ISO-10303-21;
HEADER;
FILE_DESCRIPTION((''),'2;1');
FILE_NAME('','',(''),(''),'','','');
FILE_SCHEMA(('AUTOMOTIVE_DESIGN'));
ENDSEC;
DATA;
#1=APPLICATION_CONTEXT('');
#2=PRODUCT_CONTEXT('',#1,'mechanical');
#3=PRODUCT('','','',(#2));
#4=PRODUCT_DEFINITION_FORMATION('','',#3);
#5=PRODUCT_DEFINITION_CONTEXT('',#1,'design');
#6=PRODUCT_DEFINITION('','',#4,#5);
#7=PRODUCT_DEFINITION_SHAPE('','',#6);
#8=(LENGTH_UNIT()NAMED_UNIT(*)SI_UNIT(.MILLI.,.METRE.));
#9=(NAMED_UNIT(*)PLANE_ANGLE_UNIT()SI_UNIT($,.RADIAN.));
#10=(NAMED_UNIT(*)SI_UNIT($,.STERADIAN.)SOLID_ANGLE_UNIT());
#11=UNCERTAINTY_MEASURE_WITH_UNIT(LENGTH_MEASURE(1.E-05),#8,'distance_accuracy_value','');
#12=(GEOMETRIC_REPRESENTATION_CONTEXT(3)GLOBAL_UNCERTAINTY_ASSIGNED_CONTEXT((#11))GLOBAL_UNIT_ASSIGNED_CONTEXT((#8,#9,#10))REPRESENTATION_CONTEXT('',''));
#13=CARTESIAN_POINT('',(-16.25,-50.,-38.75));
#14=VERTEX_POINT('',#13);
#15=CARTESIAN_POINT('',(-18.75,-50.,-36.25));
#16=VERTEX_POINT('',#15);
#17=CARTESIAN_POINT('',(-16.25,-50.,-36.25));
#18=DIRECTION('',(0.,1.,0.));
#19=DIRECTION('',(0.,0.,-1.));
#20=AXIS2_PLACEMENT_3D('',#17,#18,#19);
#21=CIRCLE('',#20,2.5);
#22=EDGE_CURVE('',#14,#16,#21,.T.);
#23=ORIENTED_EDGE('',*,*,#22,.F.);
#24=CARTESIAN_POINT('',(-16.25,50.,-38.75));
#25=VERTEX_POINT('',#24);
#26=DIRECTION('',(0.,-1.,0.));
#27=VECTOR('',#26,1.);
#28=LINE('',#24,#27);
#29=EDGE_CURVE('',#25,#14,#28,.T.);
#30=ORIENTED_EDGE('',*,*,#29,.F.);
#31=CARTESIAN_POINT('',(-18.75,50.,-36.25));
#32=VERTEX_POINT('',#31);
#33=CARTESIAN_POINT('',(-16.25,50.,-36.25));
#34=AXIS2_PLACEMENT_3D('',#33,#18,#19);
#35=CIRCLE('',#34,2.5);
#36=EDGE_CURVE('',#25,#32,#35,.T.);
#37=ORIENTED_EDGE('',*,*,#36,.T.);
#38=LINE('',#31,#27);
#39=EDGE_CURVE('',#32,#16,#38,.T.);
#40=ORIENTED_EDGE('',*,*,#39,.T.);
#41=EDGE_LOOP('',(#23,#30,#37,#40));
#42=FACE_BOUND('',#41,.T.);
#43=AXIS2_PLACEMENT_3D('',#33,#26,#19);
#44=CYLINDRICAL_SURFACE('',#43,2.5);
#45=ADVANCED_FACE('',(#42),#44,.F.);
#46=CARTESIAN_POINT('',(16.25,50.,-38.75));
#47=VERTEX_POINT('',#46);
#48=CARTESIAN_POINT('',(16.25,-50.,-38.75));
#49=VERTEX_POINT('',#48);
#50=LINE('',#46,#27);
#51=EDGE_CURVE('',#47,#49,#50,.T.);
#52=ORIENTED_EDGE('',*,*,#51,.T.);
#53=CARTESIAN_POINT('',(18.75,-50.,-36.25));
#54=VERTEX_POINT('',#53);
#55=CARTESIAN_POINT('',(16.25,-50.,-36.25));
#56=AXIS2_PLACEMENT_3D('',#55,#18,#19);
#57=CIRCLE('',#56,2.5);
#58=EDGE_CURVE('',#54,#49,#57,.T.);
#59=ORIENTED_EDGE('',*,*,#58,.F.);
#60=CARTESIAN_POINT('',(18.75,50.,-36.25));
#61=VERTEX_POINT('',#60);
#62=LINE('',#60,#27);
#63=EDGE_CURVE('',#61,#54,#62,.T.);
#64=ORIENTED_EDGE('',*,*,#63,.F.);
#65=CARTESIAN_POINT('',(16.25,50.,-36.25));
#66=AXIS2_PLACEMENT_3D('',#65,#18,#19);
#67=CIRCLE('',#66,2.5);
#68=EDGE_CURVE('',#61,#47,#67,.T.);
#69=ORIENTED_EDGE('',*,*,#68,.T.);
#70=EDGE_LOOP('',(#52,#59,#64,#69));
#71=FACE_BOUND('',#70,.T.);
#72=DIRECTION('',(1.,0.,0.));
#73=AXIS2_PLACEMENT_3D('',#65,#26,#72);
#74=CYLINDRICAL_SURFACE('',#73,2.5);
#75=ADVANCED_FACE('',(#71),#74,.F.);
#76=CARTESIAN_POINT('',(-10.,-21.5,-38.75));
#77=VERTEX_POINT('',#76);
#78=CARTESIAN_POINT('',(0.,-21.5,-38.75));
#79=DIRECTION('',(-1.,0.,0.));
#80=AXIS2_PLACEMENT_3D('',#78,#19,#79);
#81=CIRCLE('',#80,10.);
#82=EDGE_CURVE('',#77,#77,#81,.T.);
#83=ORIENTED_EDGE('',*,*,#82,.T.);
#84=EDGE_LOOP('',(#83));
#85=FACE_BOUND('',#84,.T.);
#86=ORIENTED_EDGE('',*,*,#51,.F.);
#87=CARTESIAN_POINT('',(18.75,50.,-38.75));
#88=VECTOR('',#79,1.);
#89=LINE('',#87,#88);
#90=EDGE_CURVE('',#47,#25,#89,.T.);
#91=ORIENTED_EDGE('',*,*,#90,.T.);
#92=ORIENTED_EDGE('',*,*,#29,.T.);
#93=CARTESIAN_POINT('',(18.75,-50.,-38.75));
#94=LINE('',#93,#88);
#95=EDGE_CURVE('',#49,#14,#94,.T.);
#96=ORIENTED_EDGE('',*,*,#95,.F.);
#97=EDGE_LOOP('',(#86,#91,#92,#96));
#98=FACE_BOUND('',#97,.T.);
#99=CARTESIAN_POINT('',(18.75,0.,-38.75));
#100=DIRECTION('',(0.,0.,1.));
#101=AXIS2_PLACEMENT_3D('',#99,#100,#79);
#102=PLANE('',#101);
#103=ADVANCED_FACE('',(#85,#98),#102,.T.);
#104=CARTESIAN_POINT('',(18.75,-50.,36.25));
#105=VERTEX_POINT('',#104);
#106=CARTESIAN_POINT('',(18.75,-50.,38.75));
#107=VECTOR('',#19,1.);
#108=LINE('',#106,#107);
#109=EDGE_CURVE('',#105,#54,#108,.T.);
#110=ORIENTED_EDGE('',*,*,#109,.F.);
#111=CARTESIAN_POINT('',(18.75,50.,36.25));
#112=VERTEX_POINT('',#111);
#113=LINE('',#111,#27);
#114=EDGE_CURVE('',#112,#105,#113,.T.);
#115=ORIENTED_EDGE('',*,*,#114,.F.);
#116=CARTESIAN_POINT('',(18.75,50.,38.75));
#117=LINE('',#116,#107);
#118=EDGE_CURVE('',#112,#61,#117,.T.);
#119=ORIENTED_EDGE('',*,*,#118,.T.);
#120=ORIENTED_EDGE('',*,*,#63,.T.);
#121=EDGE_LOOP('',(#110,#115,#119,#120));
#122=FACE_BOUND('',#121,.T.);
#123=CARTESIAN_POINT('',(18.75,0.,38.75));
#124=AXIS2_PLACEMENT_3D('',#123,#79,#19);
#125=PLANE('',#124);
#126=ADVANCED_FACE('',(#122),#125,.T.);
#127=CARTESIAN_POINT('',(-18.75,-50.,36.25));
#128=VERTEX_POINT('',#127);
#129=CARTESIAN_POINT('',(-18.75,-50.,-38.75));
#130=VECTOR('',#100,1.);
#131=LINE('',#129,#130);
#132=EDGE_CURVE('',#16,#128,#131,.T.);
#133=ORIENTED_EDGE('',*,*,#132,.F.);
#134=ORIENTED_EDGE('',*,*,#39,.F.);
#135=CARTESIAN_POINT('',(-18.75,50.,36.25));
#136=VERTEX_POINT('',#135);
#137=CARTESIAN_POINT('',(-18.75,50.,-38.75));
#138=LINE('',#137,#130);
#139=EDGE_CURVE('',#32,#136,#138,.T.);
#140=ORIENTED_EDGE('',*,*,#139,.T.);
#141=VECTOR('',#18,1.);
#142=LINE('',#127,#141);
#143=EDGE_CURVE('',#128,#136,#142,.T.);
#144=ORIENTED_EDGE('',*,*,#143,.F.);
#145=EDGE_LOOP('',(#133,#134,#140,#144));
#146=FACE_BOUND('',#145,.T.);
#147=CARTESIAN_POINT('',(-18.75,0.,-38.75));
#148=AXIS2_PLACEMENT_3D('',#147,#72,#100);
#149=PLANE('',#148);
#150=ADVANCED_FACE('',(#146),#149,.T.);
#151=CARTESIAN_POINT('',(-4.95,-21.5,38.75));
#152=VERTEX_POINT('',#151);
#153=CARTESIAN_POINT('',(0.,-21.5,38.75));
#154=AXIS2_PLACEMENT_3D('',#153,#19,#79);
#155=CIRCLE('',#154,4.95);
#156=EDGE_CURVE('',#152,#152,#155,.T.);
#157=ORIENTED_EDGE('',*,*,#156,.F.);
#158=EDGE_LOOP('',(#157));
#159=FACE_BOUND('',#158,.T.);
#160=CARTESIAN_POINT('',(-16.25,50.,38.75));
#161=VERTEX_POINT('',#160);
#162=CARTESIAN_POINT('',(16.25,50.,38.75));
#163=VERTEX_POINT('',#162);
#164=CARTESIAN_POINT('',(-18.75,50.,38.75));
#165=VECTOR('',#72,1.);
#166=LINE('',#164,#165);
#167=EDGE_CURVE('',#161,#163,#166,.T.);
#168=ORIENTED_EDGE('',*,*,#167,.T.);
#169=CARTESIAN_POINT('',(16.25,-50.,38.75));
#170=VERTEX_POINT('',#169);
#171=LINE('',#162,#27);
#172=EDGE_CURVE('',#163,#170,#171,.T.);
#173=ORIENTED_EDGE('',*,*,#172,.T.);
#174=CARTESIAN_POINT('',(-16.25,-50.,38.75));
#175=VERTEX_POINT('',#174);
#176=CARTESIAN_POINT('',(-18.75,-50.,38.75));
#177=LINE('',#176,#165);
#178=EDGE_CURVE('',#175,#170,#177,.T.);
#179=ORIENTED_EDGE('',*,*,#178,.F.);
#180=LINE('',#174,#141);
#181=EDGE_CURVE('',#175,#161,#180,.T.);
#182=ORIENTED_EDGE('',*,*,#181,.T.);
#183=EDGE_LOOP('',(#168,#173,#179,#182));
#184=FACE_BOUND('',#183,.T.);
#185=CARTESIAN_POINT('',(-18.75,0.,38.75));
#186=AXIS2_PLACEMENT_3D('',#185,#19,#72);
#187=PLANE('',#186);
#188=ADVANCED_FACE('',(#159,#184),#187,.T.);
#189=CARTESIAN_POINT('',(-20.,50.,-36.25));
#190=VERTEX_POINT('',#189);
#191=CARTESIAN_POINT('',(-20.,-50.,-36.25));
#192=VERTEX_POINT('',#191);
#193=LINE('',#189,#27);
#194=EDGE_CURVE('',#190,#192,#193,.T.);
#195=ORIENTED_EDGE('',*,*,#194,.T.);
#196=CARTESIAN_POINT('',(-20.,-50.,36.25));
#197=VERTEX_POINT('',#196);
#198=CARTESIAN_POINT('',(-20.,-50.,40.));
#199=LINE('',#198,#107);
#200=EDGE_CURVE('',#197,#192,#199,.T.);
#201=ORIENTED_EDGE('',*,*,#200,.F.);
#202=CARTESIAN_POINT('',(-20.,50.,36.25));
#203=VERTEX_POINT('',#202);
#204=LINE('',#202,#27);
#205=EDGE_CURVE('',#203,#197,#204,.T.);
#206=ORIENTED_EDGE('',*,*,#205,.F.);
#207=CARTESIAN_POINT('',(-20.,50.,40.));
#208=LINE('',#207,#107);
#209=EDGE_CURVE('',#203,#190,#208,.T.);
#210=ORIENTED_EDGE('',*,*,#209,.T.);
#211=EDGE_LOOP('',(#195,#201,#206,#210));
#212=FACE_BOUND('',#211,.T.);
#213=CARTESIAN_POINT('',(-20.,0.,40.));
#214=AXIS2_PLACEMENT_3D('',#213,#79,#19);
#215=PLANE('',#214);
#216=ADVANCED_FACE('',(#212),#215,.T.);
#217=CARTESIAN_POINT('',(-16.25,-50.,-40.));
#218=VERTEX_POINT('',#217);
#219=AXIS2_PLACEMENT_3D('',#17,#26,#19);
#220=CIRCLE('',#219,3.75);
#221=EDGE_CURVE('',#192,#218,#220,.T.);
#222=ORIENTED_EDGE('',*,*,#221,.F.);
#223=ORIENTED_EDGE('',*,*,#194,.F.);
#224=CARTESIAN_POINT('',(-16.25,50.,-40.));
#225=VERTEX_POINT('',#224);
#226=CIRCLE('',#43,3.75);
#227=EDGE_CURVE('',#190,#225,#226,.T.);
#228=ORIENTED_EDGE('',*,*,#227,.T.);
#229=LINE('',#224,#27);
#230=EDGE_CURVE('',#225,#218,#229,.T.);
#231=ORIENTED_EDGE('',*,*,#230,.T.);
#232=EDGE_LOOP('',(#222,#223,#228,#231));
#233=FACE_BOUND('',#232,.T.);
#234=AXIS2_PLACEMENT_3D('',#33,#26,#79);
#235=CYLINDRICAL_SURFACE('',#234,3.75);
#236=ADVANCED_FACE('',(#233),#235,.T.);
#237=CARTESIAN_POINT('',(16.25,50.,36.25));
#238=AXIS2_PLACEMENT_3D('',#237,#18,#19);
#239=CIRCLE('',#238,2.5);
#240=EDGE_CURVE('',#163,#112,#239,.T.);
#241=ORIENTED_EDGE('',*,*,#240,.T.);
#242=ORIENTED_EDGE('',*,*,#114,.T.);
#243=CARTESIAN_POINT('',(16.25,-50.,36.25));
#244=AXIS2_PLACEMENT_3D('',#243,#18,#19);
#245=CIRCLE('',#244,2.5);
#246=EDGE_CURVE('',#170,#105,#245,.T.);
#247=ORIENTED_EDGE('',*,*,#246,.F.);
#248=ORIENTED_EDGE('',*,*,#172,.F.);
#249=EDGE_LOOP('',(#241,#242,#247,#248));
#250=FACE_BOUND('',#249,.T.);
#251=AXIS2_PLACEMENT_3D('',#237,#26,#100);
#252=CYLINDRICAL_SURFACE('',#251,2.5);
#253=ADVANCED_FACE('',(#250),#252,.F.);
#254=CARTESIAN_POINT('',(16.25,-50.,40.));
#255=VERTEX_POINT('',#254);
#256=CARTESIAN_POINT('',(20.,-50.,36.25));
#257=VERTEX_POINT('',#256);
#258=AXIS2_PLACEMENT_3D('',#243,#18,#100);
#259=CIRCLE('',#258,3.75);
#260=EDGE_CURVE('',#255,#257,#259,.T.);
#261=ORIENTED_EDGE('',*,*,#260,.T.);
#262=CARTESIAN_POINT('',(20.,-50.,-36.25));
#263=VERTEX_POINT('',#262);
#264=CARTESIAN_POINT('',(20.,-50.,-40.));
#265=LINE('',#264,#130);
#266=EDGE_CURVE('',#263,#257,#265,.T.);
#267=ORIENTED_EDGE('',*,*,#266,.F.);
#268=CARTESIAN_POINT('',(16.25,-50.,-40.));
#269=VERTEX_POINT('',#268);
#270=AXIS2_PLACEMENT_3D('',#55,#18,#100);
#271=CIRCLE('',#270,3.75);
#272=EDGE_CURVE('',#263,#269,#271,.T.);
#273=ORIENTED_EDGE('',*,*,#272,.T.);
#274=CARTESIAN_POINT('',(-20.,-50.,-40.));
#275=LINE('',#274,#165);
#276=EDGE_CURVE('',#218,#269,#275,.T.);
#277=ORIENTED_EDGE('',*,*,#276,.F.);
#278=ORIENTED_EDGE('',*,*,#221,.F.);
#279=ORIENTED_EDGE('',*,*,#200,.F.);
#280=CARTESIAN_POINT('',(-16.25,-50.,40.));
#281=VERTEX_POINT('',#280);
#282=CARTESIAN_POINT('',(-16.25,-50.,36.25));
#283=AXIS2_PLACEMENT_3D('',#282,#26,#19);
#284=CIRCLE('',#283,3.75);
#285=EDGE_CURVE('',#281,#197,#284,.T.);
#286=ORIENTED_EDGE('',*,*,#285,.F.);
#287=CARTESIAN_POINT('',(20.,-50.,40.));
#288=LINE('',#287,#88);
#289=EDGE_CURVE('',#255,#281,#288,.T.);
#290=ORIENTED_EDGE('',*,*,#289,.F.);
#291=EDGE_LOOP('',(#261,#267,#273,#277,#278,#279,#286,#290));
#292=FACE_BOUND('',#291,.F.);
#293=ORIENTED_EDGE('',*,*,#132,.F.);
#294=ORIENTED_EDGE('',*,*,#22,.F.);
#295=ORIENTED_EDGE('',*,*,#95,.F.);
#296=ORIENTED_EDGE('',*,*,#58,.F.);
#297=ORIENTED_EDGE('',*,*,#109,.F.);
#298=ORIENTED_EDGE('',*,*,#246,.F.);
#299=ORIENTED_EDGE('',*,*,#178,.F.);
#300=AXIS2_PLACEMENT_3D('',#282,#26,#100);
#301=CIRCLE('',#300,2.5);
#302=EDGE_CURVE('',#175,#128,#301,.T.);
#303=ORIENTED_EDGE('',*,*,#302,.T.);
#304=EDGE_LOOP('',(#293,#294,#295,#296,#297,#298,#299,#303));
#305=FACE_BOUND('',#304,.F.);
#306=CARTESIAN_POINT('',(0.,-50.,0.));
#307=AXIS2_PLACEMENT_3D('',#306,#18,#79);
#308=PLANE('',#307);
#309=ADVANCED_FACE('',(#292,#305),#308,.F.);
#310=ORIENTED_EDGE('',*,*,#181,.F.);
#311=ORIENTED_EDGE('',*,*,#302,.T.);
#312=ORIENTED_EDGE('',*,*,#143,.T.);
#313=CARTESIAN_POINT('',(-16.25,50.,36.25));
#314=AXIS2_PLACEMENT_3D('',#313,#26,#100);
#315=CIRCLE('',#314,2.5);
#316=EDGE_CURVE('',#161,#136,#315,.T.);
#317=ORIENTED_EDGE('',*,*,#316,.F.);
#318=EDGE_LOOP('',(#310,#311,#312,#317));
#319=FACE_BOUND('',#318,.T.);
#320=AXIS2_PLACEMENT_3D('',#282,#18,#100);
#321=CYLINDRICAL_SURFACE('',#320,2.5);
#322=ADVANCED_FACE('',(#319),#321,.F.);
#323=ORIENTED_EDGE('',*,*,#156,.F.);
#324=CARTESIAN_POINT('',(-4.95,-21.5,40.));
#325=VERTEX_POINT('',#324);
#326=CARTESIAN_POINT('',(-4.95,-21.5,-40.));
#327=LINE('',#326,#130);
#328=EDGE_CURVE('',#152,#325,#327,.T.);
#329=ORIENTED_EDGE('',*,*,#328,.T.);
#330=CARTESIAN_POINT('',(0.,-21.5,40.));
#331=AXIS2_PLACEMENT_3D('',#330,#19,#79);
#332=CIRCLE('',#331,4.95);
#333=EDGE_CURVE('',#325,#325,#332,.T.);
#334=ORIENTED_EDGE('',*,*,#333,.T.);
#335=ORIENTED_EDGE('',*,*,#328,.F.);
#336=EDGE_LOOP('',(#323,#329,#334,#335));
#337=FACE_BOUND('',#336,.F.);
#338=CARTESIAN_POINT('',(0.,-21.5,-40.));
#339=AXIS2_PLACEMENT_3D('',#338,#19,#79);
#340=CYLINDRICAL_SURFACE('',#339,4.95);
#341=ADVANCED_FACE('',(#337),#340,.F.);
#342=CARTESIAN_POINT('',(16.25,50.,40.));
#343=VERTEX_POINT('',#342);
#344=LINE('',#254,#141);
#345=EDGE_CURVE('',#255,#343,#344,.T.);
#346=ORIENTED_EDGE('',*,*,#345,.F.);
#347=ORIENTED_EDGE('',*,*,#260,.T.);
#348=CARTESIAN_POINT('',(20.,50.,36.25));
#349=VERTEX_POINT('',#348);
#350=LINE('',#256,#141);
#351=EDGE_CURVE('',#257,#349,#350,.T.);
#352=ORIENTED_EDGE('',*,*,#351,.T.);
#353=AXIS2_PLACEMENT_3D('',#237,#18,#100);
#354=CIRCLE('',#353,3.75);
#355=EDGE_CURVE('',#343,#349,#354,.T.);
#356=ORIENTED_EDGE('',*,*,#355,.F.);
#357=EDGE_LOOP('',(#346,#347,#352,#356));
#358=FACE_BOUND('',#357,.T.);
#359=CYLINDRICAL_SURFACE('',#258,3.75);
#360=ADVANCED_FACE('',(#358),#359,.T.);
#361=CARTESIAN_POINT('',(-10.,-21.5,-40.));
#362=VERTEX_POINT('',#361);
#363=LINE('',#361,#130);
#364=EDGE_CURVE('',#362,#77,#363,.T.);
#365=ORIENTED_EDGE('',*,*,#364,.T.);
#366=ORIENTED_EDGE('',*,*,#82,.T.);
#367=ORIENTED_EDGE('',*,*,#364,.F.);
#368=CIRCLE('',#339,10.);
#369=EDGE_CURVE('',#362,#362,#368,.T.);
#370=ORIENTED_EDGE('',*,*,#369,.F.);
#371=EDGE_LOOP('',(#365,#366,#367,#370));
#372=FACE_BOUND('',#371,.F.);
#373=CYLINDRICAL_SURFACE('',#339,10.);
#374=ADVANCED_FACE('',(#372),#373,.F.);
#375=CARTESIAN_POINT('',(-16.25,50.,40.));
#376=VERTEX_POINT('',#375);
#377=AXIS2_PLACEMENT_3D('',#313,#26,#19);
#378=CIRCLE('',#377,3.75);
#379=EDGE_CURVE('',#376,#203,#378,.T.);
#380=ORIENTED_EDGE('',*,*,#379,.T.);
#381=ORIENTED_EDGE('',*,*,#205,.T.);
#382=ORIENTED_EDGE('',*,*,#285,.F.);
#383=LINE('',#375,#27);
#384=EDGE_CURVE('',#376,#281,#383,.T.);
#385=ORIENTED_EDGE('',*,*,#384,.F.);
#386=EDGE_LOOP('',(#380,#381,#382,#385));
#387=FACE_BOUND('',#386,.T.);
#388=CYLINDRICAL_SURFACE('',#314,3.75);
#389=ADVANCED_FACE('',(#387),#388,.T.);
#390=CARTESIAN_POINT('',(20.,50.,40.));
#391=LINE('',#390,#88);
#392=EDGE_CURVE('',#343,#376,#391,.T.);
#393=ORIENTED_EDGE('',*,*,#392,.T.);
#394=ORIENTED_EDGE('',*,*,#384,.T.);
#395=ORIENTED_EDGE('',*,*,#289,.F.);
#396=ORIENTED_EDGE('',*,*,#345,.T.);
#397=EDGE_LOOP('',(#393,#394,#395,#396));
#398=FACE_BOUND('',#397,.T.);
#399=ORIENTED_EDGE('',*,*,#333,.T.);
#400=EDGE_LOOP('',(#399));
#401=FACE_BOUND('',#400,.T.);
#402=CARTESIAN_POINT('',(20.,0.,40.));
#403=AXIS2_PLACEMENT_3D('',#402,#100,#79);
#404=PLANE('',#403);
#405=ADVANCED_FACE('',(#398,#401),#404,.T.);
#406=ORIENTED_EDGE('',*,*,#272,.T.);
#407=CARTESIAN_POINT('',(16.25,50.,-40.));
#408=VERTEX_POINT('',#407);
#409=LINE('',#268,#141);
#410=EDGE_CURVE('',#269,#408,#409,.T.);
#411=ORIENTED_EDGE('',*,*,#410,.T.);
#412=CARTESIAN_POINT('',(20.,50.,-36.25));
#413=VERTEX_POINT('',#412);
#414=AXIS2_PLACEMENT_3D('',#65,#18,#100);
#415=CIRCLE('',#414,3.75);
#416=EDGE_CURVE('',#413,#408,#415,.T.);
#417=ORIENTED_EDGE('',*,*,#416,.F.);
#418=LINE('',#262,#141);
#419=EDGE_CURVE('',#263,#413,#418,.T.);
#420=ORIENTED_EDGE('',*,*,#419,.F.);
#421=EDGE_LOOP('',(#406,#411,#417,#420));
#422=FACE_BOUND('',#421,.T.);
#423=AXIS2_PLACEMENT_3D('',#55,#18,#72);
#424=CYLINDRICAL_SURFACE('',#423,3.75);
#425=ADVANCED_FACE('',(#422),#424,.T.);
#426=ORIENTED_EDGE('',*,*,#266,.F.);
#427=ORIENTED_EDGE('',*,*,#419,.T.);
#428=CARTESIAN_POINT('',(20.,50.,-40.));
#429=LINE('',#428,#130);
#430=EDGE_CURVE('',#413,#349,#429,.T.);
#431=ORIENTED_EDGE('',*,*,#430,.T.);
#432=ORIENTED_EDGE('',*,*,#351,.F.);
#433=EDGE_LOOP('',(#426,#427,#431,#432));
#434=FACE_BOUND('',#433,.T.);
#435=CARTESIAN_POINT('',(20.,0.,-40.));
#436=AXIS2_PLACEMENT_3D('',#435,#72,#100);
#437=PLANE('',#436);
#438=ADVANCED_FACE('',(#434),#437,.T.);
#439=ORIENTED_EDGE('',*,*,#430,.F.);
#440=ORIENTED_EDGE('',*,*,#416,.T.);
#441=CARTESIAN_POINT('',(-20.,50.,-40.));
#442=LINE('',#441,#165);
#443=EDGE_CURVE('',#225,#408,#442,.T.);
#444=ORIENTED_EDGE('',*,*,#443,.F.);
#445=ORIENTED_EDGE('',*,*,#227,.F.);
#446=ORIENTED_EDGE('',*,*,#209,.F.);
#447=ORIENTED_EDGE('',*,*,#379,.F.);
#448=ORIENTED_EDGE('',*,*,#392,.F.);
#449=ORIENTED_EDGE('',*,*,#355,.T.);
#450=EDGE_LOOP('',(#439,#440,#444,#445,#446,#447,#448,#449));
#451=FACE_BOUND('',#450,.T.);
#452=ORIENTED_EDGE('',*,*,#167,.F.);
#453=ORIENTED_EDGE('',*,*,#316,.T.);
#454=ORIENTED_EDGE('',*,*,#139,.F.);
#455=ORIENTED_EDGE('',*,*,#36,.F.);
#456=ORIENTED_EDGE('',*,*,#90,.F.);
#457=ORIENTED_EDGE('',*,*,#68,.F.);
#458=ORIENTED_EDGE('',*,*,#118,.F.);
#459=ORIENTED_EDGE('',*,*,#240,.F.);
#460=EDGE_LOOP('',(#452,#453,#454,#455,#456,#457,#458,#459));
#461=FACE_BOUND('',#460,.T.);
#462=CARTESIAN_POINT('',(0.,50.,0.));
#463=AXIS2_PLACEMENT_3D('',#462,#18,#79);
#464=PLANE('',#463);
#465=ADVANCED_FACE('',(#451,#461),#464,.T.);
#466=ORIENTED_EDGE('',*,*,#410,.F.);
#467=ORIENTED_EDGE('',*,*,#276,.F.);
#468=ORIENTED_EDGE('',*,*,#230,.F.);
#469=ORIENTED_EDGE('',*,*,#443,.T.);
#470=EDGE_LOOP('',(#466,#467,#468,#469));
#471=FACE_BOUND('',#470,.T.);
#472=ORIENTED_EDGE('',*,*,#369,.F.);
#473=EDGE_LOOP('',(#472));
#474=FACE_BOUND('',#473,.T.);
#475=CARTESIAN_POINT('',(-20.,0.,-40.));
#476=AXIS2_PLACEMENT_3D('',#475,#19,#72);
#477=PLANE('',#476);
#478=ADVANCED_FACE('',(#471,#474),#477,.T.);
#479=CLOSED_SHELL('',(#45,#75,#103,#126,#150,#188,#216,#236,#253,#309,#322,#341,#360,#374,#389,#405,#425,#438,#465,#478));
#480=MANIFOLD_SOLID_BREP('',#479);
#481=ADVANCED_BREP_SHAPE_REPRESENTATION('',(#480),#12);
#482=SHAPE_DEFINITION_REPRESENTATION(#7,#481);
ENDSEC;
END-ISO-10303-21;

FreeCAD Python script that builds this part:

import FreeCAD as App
import Part
import Sketcher
from FreeCAD import Vector


def edges_at(feature, points):
    """Names of the edges that pass closest to the given points."""
    edges = feature.Shape.Edges
    near = lambda p: min(range(len(edges)), key=lambda i: edges[i].distToShape(Part.Vertex(*p))[0])
    return sorted({f"Edge{near(p) + 1}" for p in points})


def add_polygon(sketch, points):
    """Adds a closed chain of lines whose ends are joined by coincident constraints."""
    first, n = sketch.GeometryCount, len(points)
    for a, b in zip(points, points[1:] + points[:1]):
        sketch.addGeometry(Part.LineSegment(App.Vector(*a, 0), App.Vector(*b, 0)), False)
    for i in range(n):
        sketch.addConstraint(Sketcher.Constraint("Coincident", first + i, 2, first + (i + 1) % n, 1))

doc = App.newDocument("Part")
body = doc.addObject("PartDesign::Body", "Body")

# Sketch on XZ plane
sketch1 = body.newObject("Sketcher::SketchObject", "Sketch")
sketch1.AttachmentSupport = (doc.getObject("XZ_Plane"), [""])
sketch1.MapMode = "FlatFace"
add_polygon(sketch1, [(-20, 40), (20, 40), (20, -40), (-20, -40)])  # lines 0-3
add_polygon(sketch1, [(18.75, 38.75), (-18.75, 38.75), (-18.75, -38.75), (18.75, -38.75)])  # lines 4-7
sketch1.addConstraint([
    Sketcher.Constraint("Horizontal", 0),
    Sketcher.Constraint("Vertical", 1),
    Sketcher.Constraint("Horizontal", 2),
    Sketcher.Constraint("Vertical", 3),
    Sketcher.Constraint("Horizontal", 4),
    Sketcher.Constraint("Vertical", 5),
    Sketcher.Constraint("Horizontal", 6),
    Sketcher.Constraint("Vertical", 7),
    Sketcher.Constraint("Symmetric", 0, 2, 2, 2, -1, 1),
    Sketcher.Constraint("Symmetric", 4, 2, 6, 2, -1, 1),
    Sketcher.Constraint("DistanceX", 0, 1, 0, 2, 40.0),
    Sketcher.Constraint("DistanceY", 1, 2, 1, 1, 80.0),
    Sketcher.Constraint("DistanceX", 4, 2, 4, 1, 37.5),
    Sketcher.Constraint("DistanceY", 5, 2, 5, 1, 77.5),
])
pad1 = body.newObject("PartDesign::Pad", "Pad")
pad1.Profile = sketch1
pad1.Length = 100
pad1.Midplane = True
doc.recompute()

fillet = body.newObject("PartDesign::Fillet", "Fillet")
fillet.Base = (pad1, edges_at(pad1, [
    (20, 0, -40),
    (20, 0, 40),
    (-20, 0, -40),
    (-20, 0, 40),
]))
fillet.Radius = 3.75
doc.recompute()

fillet2 = body.newObject("PartDesign::Fillet", "Fillet001")
fillet2.Base = (fillet, edges_at(fillet, [
    (-18.75, 0, -38.75),
    (18.75, 0, 38.75),
    (18.75, 0, -38.75),
    (-18.75, 0, 38.75),
]))
fillet2.Radius = 2.5

# Sketch on XY plane
sketch2 = body.newObject("Sketcher::SketchObject", "Sketch001")
sketch2.AttachmentSupport = (doc.getObject("XY_Plane"), [""])
sketch2.MapMode = "FlatFace"
sketch2.AttachmentOffset = App.Placement(Vector(0, 0, -40), App.Rotation())
sketch2.addGeometry(Part.Circle(Vector(0, -21.5, 0), Vector(0, 0, 1), 4.95), False)
sketch2.addConstraint([
    Sketcher.Constraint("PointOnObject", 0, 3, -2),
    Sketcher.Constraint("Diameter", 0, 9.9),
    Sketcher.Constraint("DistanceY", 0, 3, -1, 1, 21.5),
])
pocket1 = body.newObject("PartDesign::Pocket", "Pocket")
pocket1.Profile = sketch2
pocket1.Type = "ThroughAll"
pocket1.Reversed = True

# Sketch on XY plane
sketch3 = body.newObject("Sketcher::SketchObject", "Sketch002")
sketch3.AttachmentSupport = (doc.getObject("XY_Plane"), [""])
sketch3.MapMode = "FlatFace"
sketch3.AttachmentOffset = App.Placement(Vector(0, 0, -40), App.Rotation())
sketch3.addGeometry([
    Part.Circle(Vector(0, -21.5, 0), Vector(0, 0, 1), 10),
    Part.Circle(Vector(0, -21.5, 0), Vector(0, 0, 1), 4.95),
], False)
sketch3.addConstraint([
    Sketcher.Constraint("Coincident", 1, 3, 0, 3),
    Sketcher.Constraint("PointOnObject", 0, 3, -2),
    Sketcher.Constraint("Diameter", 0, 20.0),
    Sketcher.Constraint("Diameter", 1, 9.9),
    Sketcher.Constraint("DistanceY", 0, 3, -1, 1, 21.5),
])
pocket2 = body.newObject("PartDesign::Pocket", "Pocket001")
pocket2.Profile = sketch3
pocket2.Length = 10
pocket2.Reversed = True

doc.recompute()
